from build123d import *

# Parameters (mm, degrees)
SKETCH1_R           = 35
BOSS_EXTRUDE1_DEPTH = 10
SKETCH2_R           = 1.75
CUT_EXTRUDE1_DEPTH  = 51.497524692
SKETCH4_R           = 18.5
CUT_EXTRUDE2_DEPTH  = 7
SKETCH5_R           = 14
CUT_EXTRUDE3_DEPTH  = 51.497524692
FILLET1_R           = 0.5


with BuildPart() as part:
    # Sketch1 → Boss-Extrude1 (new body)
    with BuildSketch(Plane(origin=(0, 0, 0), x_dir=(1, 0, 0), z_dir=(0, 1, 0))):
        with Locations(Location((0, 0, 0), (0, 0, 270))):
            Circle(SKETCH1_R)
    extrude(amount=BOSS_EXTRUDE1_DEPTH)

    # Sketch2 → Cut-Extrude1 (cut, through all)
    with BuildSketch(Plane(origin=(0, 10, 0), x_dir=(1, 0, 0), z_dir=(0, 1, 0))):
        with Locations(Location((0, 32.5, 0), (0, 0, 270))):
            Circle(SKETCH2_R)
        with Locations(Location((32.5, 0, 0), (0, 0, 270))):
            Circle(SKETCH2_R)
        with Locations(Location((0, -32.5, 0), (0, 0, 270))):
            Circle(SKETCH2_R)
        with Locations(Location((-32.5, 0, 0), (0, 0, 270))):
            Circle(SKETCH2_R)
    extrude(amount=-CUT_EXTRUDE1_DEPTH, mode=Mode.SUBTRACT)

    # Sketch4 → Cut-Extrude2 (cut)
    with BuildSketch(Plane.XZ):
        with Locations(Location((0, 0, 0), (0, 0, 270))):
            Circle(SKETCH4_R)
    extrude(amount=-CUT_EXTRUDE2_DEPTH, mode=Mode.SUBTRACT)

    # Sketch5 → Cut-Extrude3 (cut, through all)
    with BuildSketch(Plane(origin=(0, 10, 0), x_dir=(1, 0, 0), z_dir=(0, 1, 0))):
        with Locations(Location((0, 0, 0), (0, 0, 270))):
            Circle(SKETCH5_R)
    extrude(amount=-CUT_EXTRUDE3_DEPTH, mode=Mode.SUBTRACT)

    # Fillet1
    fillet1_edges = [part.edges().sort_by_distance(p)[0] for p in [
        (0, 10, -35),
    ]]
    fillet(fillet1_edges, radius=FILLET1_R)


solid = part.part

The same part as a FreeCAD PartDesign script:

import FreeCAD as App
import Part
import Sketcher
from FreeCAD import Vector


def edges_at(feature, points):
    """Names of the edges that pass closest to the given points."""
    edges = feature.Shape.Edges
    near = lambda p: min(range(len(edges)), key=lambda i: edges[i].distToShape(Part.Vertex(*p))[0])
    return sorted({f"Edge{near(p) + 1}" for p in points})

doc = App.newDocument("Part")
params = doc.addObject("Spreadsheet::Sheet", "Params")
for row, (alias, value) in enumerate([
    ("sketch1_diameter", "70 mm"),
    ("pad1_length", "10 mm"),
    ("sketch2_diameter", "3.5 mm"),
    ("sketch3_diameter", "37 mm"),
    ("pocket2_length", "7 mm"),
    ("sketch4_diameter", "28 mm"),
    ("fillet_radius", "0.5 mm"),
], start=1):
    params.set(f"A{row}", alias)
    params.set(f"B{row}", "=" + value)
    params.setAlias(f"B{row}", alias)

body = doc.addObject("PartDesign::Body", "Body")

# Sketch on XZ plane
sketch1 = body.newObject("Sketcher::SketchObject", "Sketch")
sketch1.AttachmentSupport = (doc.getObject("XZ_Plane"), [""])
sketch1.MapMode = "FlatFace"
sketch1.addGeometry(Part.Circle(Vector(0, 0, 0), Vector(0, 0, 1), 35), False)
sketch1.addConstraint(Sketcher.Constraint("Coincident", 0, 3, -1, 1))
sketch1.addConstraint(Sketcher.Constraint("Diameter", 0, 70.0))
sketch1.setExpression("Constraints[1]", "Params.sketch1_diameter")
pad1 = body.newObject("PartDesign::Pad", "Pad")
pad1.Profile = sketch1
pad1.setExpression("Length", "Params.pad1_length")
pad1.Reversed = True

# Sketch on XZ plane
sketch2 = body.newObject("Sketcher::SketchObject", "Sketch001")
sketch2.AttachmentSupport = (doc.getObject("XZ_Plane"), [""])
sketch2.MapMode = "FlatFace"
sketch2.AttachmentOffset = App.Placement(Vector(0, 0, -10), App.Rotation())
sketch2.addGeometry(Part.Circle(Vector(0, -32.5, 0), Vector(0, 0, 1), 1.75), False)
sketch2.addGeometry(Part.Circle(Vector(32.5, 0, 0), Vector(0, 0, 1), 1.75), False)
sketch2.addGeometry(Part.Circle(Vector(0, 32.5, 0), Vector(0, 0, 1), 1.75), False)
sketch2.addGeometry(Part.Circle(Vector(-32.5, 0, 0), Vector(0, 0, 1), 1.75), False)
sketch2.addConstraint(Sketcher.Constraint("Equal", 0, 1))
sketch2.addConstraint(Sketcher.Constraint("Equal", 1, 2))
sketch2.addConstraint(Sketcher.Constraint("Equal", 2, 3))
sketch2.addConstraint(Sketcher.Constraint("Symmetric", 0, 3, 2, 3, -1, 1))
sketch2.addConstraint(Sketcher.Constraint("Symmetric", 1, 3, 3, 3, -1, 1))
sketch2.addConstraint(Sketcher.Constraint("PointOnObject", 0, 3, -2))
sketch2.addConstraint(Sketcher.Constraint("PointOnObject", 1, 3, -1))
sketch2.addConstraint(Sketcher.Constraint("Diameter", 0, 3.5))
sketch2.addConstraint(Sketcher.Constraint("DistanceY", 0, 3, 2, 3, 65.0))
sketch2.addConstraint(Sketcher.Constraint("DistanceX", 3, 3, 1, 3, 65.0))
sketch2.setExpression("Constraints[7]", "Params.sketch2_diameter")
pocket1 = body.newObject("PartDesign::Pocket", "Pocket")
pocket1.Profile = sketch2
pocket1.Type = "ThroughAll"
pocket1.Reversed = True

# Sketch on XZ plane
sketch3 = body.newObject("Sketcher::SketchObject", "Sketch002")
sketch3.AttachmentSupport = (doc.getObject("XZ_Plane"), [""])
sketch3.MapMode = "FlatFace"
sketch3.addGeometry(Part.Circle(Vector(0, 0, 0), Vector(0, 0, 1), 18.5), False)
sketch3.addConstraint(Sketcher.Constraint("Coincident", 0, 3, -1, 1))
sketch3.addConstraint(Sketcher.Constraint("Diameter", 0, 37.0))
sketch3.setExpression("Constraints[1]", "Params.sketch3_diameter")
pocket2 = body.newObject("PartDesign::Pocket", "Pocket001")
pocket2.Profile = sketch3
pocket2.setExpression("Length", "Params.pocket2_length")

# Sketch on XZ plane
sketch4 = body.newObject("Sketcher::SketchObject", "Sketch003")
sketch4.AttachmentSupport = (doc.getObject("XZ_Plane"), [""])
sketch4.MapMode = "FlatFace"
sketch4.AttachmentOffset = App.Placement(Vector(0, 0, -10), App.Rotation())
sketch4.addGeometry(Part.Circle(Vector(0, 0, 0), Vector(0, 0, 1), 14), False)
sketch4.addConstraint(Sketcher.Constraint("Coincident", 0, 3, -1, 1))
sketch4.addConstraint(Sketcher.Constraint("Diameter", 0, 28.0))
sketch4.setExpression("Constraints[1]", "Params.sketch4_diameter")
pocket3 = body.newObject("PartDesign::Pocket", "Pocket002")
pocket3.Profile = sketch4
pocket3.Type = "ThroughAll"
pocket3.Reversed = True
doc.recompute()

fillet = body.newObject("PartDesign::Fillet", "Fillet")
fillet.Base = (pocket3, edges_at(pocket3, [(0, 10, -35)]))
fillet.setExpression("Radius", "Params.fillet_radius")

doc.recompute()
